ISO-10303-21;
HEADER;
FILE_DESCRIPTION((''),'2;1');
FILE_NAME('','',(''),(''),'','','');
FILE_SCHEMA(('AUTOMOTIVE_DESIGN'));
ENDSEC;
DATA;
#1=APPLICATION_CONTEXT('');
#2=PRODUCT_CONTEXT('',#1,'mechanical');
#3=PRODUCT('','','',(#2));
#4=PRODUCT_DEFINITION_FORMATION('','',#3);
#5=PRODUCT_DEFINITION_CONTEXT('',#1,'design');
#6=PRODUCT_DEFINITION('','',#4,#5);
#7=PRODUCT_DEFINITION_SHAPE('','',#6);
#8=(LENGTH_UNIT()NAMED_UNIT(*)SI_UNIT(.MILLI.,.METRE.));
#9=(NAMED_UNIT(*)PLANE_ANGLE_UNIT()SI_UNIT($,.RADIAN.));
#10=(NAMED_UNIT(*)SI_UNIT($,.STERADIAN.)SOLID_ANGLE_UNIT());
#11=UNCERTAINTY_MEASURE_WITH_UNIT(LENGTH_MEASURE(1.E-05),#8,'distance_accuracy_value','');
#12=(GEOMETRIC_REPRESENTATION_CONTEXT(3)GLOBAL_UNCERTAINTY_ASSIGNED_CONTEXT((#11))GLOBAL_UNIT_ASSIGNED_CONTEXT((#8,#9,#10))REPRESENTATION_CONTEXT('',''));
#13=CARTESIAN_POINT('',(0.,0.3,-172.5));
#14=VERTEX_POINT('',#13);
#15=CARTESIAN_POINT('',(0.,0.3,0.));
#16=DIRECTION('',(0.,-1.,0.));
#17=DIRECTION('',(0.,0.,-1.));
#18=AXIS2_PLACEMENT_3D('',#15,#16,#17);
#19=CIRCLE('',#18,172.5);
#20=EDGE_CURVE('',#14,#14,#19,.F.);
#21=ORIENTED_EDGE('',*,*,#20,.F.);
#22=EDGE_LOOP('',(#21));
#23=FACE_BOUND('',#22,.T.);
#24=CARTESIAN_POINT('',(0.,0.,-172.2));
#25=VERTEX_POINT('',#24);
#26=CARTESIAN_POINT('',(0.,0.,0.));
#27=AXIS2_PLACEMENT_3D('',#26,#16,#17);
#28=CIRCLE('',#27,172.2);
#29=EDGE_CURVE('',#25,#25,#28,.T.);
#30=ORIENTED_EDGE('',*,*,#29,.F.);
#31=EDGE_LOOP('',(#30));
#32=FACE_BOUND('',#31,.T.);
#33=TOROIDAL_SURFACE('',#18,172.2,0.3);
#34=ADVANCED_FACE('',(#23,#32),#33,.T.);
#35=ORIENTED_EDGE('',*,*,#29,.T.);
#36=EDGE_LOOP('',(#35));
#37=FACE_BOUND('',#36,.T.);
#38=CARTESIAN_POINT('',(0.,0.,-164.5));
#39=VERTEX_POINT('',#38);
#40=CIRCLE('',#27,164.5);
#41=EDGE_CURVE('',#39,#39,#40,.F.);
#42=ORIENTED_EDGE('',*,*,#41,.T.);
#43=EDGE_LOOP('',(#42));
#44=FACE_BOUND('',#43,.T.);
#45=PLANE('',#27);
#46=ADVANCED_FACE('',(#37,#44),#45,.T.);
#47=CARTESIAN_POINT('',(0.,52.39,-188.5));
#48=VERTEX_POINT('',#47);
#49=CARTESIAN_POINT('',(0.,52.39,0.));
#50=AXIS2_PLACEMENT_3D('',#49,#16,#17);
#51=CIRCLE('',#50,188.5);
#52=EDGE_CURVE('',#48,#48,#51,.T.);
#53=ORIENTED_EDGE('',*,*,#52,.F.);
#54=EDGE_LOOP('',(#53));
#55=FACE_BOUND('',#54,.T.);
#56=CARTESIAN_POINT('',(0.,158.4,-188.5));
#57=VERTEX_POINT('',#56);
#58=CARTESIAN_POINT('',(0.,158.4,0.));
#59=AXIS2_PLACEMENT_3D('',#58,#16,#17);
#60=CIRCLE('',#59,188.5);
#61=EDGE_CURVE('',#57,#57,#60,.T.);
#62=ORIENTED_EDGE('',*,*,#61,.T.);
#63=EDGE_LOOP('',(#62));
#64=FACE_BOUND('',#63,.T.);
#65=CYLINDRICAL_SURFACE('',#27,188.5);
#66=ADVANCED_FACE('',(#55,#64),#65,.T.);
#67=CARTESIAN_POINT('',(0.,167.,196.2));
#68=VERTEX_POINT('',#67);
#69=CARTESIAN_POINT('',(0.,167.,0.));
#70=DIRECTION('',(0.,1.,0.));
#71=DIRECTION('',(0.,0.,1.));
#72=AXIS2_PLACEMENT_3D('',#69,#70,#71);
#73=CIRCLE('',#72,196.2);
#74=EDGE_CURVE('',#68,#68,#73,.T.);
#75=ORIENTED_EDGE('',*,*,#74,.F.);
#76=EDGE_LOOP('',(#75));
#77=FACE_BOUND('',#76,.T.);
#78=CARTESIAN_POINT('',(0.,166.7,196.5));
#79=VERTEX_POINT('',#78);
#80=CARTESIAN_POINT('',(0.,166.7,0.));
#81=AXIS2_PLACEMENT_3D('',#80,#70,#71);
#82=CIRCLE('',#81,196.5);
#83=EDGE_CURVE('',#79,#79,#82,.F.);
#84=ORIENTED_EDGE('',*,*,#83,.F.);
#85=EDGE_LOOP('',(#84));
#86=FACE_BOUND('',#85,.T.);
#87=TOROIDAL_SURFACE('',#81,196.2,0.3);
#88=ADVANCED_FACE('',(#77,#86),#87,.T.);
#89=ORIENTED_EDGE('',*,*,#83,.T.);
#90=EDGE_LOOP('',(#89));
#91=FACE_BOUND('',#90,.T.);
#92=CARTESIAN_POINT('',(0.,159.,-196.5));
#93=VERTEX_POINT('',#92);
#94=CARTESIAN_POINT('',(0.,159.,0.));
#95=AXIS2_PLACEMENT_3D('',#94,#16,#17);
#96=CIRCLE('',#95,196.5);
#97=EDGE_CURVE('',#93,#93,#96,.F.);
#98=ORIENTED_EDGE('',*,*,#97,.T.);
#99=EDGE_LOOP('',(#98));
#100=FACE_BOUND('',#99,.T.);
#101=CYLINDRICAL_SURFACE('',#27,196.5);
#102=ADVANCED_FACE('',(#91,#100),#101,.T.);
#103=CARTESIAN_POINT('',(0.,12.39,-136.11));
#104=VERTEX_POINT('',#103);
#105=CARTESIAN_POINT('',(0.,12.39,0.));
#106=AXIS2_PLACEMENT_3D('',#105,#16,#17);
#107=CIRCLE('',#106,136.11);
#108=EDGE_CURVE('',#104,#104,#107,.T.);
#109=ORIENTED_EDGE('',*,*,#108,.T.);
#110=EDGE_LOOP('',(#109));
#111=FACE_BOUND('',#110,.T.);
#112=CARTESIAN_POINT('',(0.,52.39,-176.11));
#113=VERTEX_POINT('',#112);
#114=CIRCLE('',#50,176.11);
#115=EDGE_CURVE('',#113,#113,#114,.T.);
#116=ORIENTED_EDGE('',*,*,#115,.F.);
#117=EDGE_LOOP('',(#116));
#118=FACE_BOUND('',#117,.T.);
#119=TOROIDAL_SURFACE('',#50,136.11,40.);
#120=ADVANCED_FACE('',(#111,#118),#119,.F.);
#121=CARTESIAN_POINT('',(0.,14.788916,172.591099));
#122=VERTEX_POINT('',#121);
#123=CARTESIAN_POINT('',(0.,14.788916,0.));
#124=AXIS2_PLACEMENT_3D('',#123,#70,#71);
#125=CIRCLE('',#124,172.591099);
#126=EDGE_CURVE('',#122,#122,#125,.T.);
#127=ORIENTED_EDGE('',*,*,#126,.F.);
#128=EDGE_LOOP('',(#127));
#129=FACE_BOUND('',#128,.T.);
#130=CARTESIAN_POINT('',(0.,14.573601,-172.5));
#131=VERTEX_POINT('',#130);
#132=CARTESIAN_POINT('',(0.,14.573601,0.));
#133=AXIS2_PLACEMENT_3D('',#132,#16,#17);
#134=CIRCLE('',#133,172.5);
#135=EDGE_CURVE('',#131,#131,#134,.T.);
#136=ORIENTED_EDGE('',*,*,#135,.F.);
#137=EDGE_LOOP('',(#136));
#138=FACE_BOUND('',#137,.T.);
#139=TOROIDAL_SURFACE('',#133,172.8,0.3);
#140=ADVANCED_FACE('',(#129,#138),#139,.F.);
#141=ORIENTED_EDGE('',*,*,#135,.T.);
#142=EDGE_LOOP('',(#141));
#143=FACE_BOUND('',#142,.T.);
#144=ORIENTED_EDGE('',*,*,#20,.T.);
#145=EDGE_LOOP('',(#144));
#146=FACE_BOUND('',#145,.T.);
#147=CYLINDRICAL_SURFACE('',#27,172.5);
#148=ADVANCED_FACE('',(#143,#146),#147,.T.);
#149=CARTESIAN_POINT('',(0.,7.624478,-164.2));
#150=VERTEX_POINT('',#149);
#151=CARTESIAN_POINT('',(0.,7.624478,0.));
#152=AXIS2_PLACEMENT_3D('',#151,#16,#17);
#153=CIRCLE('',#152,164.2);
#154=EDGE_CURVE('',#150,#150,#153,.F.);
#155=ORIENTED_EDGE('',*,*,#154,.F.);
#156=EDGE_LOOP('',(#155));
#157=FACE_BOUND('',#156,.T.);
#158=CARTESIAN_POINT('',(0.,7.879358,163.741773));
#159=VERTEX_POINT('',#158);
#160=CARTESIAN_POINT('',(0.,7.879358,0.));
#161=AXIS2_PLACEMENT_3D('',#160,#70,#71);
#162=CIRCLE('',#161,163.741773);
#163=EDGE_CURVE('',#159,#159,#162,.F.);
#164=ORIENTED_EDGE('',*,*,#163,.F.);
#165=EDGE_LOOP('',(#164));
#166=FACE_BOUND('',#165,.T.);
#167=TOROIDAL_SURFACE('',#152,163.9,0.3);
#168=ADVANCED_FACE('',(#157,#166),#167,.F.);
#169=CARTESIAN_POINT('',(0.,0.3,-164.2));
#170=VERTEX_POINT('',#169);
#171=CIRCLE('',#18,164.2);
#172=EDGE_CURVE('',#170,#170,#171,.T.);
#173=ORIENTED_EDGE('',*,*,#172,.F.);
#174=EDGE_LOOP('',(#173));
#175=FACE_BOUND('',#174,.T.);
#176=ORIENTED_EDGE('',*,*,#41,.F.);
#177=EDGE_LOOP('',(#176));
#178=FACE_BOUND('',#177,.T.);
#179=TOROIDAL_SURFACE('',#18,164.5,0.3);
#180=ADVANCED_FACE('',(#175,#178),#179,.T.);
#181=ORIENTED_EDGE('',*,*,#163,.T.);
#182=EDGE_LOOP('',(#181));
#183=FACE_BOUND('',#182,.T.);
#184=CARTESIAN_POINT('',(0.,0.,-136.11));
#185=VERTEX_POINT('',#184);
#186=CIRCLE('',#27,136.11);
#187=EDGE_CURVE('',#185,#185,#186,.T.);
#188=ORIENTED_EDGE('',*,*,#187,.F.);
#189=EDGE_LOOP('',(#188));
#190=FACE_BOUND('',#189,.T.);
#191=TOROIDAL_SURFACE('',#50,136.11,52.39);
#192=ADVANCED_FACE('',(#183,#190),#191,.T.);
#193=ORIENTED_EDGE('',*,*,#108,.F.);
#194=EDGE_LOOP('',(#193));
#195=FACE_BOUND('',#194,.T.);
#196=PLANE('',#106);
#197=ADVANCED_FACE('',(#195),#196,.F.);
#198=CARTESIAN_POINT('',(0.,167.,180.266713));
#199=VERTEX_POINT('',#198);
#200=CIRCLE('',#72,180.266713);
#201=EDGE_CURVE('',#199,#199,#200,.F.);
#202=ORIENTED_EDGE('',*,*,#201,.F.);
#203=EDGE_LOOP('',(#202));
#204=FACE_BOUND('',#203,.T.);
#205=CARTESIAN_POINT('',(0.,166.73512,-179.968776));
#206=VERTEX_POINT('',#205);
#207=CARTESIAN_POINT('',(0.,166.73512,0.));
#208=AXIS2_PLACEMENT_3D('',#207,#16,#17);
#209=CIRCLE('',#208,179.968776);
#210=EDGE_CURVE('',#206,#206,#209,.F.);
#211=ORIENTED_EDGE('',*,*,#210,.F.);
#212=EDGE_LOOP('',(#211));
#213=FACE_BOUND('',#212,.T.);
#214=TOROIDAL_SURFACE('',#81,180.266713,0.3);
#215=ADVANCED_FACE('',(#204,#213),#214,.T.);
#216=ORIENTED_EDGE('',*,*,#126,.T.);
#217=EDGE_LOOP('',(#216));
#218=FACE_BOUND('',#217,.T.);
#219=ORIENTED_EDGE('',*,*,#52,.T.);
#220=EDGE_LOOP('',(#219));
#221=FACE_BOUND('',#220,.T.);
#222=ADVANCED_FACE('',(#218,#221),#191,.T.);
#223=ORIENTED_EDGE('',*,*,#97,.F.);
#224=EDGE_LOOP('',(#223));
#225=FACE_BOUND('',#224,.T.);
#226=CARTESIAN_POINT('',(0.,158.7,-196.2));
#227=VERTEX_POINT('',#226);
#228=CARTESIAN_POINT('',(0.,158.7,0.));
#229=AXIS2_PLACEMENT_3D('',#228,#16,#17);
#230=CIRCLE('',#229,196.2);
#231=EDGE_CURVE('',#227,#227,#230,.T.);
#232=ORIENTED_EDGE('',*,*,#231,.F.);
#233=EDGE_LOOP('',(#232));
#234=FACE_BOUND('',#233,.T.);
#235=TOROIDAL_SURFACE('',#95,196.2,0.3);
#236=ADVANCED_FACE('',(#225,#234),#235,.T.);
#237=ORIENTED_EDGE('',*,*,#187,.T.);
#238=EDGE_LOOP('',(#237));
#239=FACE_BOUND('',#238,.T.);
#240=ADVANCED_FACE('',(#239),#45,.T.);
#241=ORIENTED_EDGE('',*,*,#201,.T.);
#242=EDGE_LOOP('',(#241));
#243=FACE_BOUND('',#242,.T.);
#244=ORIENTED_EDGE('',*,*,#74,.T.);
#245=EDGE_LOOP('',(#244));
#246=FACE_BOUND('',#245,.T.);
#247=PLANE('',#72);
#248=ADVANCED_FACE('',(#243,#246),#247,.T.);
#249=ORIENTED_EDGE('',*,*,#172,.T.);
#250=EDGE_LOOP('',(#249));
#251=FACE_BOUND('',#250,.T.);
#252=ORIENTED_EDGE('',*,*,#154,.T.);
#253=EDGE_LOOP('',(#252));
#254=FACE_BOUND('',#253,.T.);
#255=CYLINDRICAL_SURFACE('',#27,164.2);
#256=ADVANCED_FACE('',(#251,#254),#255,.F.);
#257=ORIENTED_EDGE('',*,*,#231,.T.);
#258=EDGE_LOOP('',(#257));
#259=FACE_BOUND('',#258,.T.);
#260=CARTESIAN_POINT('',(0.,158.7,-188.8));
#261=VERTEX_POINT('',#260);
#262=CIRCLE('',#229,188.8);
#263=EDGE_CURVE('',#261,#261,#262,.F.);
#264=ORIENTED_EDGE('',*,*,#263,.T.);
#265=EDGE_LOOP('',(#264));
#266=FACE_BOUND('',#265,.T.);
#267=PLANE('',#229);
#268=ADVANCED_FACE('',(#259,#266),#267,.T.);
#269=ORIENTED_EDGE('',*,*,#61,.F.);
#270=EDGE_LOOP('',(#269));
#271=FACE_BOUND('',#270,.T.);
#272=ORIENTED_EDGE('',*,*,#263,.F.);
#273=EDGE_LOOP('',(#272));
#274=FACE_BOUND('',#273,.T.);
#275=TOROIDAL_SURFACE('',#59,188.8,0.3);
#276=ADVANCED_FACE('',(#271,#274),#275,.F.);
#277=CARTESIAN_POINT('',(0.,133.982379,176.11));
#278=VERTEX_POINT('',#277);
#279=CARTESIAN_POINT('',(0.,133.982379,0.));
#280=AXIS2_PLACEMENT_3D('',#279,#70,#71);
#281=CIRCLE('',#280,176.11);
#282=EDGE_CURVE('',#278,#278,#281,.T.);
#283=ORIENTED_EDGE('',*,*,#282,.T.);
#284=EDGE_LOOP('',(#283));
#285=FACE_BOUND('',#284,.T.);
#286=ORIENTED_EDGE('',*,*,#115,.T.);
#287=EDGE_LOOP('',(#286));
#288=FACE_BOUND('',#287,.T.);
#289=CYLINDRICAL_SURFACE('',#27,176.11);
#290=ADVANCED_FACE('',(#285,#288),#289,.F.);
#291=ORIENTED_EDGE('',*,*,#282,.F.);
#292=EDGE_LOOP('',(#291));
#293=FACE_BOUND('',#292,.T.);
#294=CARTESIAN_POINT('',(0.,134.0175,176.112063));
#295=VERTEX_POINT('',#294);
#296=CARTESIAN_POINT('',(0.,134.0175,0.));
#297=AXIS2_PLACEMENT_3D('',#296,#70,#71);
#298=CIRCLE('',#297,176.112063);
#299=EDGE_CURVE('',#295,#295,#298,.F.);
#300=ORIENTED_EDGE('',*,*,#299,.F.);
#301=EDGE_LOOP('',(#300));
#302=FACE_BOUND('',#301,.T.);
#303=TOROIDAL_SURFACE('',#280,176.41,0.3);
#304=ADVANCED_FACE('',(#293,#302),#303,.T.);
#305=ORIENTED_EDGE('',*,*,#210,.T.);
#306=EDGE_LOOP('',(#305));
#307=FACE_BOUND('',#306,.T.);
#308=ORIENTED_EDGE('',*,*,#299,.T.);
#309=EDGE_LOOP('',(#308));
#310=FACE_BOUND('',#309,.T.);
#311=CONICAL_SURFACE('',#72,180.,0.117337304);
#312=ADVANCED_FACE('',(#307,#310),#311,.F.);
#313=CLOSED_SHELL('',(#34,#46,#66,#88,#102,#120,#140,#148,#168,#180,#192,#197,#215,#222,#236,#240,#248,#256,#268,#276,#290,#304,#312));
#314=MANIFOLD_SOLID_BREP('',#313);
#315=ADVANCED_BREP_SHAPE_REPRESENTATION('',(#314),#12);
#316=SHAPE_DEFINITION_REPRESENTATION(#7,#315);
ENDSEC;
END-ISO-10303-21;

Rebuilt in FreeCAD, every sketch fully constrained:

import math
import FreeCAD as App
import Part
import Sketcher
from FreeCAD import Vector


def edges_at(feature, points):
    """Names of the edges that pass closest to the given points."""
    edges = feature.Shape.Edges
    near = lambda p: min(range(len(edges)), key=lambda i: edges[i].distToShape(Part.Vertex(*p))[0])
    return sorted({f"Edge{near(p) + 1}" for p in points})

doc = App.newDocument("Part")
params = doc.addObject("Spreadsheet::Sheet", "Params")
for row, (alias, value) in enumerate([
    ("sketch1_radius", "40 mm"),
    ("sketch1_width", "8 mm"),
    ("sketch1_radius2", "52.39 mm"),
    ("sketch1_width2", "8.3 mm"),
    ("sketch1_width3", "16.5 mm"),
    ("revolution_angle", "360 deg"),
    ("fillet_radius", "0.3 mm"),
], start=1):
    params.set(f"A{row}", alias)
    params.set(f"B{row}", "=" + value)
    params.setAlias(f"B{row}", alias)

body = doc.addObject("PartDesign::Body", "Body")

sketch1 = body.newObject("Sketcher::SketchObject", "Sketch")
sketch1.AttachmentSupport = (doc.getObject("XY_Plane"), [""])
sketch1.MapMode = "FlatFace"
sketch1.addGeometry([
    Part.ArcOfCircle(Part.Circle(Vector(136, 52, 0), Vector(0, 0, 1), 40), math.radians(-90), math.radians(0)),
    Part.LineSegment(Vector(136, 12, 0), Vector(0, 12, 0)),
    Part.LineSegment(Vector(0, 12, 0), Vector(0, 0, 0)),
    Part.LineSegment(Vector(0, 0, 0), Vector(136, 0, 0)),
    Part.ArcOfCircle(Part.Circle(Vector(136, 52, 0), Vector(0, 0, 1), 52), math.radians(-90), math.radians(-58)),
    Part.LineSegment(Vector(164, 8, 0), Vector(164, 0, 0)),
    Part.LineSegment(Vector(164, 0, 0), Vector(172, 0, 0)),
    Part.LineSegment(Vector(172, 0, 0), Vector(172, 15, 0)),
    Part.ArcOfCircle(Part.Circle(Vector(136, 52, 0), Vector(0, 0, 1), 52), math.radians(-46), math.radians(0)),
    Part.LineSegment(Vector(188, 52, 0), Vector(188, 159, 0)),
    Part.LineSegment(Vector(188, 159, 0), Vector(196, 159, 0)),
    Part.LineSegment(Vector(196, 159, 0), Vector(196, 167, 0)),
    Part.LineSegment(Vector(196, 167, 0), Vector(180, 167, 0)),
    Part.LineSegment(Vector(180, 167, 0), Vector(176, 134, 0)),
    Part.LineSegment(Vector(176, 134, 0), Vector(176, 52, 0)),
], False)
sketch1.addConstraint([
    Sketcher.Constraint("Tangent", 0, 1, 1, 1),
    Sketcher.Constraint("Coincident", 1, 2, 2, 1),
    Sketcher.Constraint("Coincident", 2, 2, 3, 1),
    Sketcher.Constraint("Tangent", 3, 2, 4, 1),
    Sketcher.Constraint("Coincident", 4, 2, 5, 1),
    Sketcher.Constraint("Coincident", 5, 2, 6, 1),
    Sketcher.Constraint("Coincident", 6, 2, 7, 1),
    Sketcher.Constraint("Coincident", 7, 2, 8, 1),
    Sketcher.Constraint("Tangent", 8, 2, 9, 1),
    Sketcher.Constraint("Coincident", 9, 2, 10, 1),
    Sketcher.Constraint("Coincident", 10, 2, 11, 1),
    Sketcher.Constraint("Coincident", 11, 2, 12, 1),
    Sketcher.Constraint("Coincident", 12, 2, 13, 1),
    Sketcher.Constraint("Coincident", 13, 2, 14, 1),
    Sketcher.Constraint("Tangent", 14, 2, 0, 2),
    Sketcher.Constraint("Horizontal", 1),
    Sketcher.Constraint("Vertical", 2),
    Sketcher.Constraint("Horizontal", 3),
    Sketcher.Constraint("Vertical", 5),
    Sketcher.Constraint("Horizontal", 6),
    Sketcher.Constraint("Vertical", 7),
    Sketcher.Constraint("Vertical", 9),
    Sketcher.Constraint("Horizontal", 10),
    Sketcher.Constraint("Vertical", 11),
    Sketcher.Constraint("Horizontal", 12),
    Sketcher.Constraint("Vertical", 14),
    Sketcher.Constraint("Coincident", 2, 2, -1, 1),
    Sketcher.Constraint("Coincident", 4, 3, 0, 3),
    Sketcher.Constraint("Coincident", 8, 3, 0, 3),
    Sketcher.Constraint("Equal", 4, 8),
    Sketcher.Constraint("PointOnObject", 5, 2, -1),
    Sketcher.Constraint("Equal", 6, 11),
    Sketcher.Constraint("Radius", 0, 40.0),
    Sketcher.Constraint("DistanceX", 10, 1, 10, 2, 8.0),
    Sketcher.Constraint("Radius", 4, 52.39),
    Sketcher.Constraint("DistanceX", 6, 1, 6, 2, 8.3),
    Sketcher.Constraint("DistanceX", 12, 2, 12, 1, 16.5),
    Sketcher.Constraint("DistanceY", -1, 1, 11, 2, 167.0),
    Sketcher.Constraint("DistanceX", -1, 1, 12, 2, 180.0),
    Sketcher.Constraint("DistanceY", -1, 1, 13, 2, 134.0),
    Sketcher.Constraint("DistanceX", 7, 2, 8, 2, 16.0),
])
sketch1.setExpression("Constraints[32]", "Params.sketch1_radius")
sketch1.setExpression("Constraints[33]", "Params.sketch1_width")
sketch1.setExpression("Constraints[34]", "Params.sketch1_radius2")
sketch1.setExpression("Constraints[35]", "Params.sketch1_width2")
sketch1.setExpression("Constraints[36]", "Params.sketch1_width3")
revolution = body.newObject("PartDesign::Revolution", "Revolution")
revolution.Profile = sketch1
revolution.ReferenceAxis = (sketch1, ["V_Axis"])
revolution.setExpression("Angle", "Params.revolution_angle")
doc.recompute()

fillet = body.newObject("PartDesign::Fillet", "Fillet")
fillet.Base = (revolution, edges_at(revolution, [
    (0, 134, 176.11),
    (0, 167, 180),
    (0, 167, 196.5),
    (0, 158.7, 196.5),
    (0, 158.7, 188.5),
    (0, 14.701, 172.5),
    (0, 0, 172.5),
    (0, 0, 164.2),
    (0, 8.167, 164.2),
]))
fillet.setExpression("Radius", "Params.fillet_radius")

doc.recompute()
